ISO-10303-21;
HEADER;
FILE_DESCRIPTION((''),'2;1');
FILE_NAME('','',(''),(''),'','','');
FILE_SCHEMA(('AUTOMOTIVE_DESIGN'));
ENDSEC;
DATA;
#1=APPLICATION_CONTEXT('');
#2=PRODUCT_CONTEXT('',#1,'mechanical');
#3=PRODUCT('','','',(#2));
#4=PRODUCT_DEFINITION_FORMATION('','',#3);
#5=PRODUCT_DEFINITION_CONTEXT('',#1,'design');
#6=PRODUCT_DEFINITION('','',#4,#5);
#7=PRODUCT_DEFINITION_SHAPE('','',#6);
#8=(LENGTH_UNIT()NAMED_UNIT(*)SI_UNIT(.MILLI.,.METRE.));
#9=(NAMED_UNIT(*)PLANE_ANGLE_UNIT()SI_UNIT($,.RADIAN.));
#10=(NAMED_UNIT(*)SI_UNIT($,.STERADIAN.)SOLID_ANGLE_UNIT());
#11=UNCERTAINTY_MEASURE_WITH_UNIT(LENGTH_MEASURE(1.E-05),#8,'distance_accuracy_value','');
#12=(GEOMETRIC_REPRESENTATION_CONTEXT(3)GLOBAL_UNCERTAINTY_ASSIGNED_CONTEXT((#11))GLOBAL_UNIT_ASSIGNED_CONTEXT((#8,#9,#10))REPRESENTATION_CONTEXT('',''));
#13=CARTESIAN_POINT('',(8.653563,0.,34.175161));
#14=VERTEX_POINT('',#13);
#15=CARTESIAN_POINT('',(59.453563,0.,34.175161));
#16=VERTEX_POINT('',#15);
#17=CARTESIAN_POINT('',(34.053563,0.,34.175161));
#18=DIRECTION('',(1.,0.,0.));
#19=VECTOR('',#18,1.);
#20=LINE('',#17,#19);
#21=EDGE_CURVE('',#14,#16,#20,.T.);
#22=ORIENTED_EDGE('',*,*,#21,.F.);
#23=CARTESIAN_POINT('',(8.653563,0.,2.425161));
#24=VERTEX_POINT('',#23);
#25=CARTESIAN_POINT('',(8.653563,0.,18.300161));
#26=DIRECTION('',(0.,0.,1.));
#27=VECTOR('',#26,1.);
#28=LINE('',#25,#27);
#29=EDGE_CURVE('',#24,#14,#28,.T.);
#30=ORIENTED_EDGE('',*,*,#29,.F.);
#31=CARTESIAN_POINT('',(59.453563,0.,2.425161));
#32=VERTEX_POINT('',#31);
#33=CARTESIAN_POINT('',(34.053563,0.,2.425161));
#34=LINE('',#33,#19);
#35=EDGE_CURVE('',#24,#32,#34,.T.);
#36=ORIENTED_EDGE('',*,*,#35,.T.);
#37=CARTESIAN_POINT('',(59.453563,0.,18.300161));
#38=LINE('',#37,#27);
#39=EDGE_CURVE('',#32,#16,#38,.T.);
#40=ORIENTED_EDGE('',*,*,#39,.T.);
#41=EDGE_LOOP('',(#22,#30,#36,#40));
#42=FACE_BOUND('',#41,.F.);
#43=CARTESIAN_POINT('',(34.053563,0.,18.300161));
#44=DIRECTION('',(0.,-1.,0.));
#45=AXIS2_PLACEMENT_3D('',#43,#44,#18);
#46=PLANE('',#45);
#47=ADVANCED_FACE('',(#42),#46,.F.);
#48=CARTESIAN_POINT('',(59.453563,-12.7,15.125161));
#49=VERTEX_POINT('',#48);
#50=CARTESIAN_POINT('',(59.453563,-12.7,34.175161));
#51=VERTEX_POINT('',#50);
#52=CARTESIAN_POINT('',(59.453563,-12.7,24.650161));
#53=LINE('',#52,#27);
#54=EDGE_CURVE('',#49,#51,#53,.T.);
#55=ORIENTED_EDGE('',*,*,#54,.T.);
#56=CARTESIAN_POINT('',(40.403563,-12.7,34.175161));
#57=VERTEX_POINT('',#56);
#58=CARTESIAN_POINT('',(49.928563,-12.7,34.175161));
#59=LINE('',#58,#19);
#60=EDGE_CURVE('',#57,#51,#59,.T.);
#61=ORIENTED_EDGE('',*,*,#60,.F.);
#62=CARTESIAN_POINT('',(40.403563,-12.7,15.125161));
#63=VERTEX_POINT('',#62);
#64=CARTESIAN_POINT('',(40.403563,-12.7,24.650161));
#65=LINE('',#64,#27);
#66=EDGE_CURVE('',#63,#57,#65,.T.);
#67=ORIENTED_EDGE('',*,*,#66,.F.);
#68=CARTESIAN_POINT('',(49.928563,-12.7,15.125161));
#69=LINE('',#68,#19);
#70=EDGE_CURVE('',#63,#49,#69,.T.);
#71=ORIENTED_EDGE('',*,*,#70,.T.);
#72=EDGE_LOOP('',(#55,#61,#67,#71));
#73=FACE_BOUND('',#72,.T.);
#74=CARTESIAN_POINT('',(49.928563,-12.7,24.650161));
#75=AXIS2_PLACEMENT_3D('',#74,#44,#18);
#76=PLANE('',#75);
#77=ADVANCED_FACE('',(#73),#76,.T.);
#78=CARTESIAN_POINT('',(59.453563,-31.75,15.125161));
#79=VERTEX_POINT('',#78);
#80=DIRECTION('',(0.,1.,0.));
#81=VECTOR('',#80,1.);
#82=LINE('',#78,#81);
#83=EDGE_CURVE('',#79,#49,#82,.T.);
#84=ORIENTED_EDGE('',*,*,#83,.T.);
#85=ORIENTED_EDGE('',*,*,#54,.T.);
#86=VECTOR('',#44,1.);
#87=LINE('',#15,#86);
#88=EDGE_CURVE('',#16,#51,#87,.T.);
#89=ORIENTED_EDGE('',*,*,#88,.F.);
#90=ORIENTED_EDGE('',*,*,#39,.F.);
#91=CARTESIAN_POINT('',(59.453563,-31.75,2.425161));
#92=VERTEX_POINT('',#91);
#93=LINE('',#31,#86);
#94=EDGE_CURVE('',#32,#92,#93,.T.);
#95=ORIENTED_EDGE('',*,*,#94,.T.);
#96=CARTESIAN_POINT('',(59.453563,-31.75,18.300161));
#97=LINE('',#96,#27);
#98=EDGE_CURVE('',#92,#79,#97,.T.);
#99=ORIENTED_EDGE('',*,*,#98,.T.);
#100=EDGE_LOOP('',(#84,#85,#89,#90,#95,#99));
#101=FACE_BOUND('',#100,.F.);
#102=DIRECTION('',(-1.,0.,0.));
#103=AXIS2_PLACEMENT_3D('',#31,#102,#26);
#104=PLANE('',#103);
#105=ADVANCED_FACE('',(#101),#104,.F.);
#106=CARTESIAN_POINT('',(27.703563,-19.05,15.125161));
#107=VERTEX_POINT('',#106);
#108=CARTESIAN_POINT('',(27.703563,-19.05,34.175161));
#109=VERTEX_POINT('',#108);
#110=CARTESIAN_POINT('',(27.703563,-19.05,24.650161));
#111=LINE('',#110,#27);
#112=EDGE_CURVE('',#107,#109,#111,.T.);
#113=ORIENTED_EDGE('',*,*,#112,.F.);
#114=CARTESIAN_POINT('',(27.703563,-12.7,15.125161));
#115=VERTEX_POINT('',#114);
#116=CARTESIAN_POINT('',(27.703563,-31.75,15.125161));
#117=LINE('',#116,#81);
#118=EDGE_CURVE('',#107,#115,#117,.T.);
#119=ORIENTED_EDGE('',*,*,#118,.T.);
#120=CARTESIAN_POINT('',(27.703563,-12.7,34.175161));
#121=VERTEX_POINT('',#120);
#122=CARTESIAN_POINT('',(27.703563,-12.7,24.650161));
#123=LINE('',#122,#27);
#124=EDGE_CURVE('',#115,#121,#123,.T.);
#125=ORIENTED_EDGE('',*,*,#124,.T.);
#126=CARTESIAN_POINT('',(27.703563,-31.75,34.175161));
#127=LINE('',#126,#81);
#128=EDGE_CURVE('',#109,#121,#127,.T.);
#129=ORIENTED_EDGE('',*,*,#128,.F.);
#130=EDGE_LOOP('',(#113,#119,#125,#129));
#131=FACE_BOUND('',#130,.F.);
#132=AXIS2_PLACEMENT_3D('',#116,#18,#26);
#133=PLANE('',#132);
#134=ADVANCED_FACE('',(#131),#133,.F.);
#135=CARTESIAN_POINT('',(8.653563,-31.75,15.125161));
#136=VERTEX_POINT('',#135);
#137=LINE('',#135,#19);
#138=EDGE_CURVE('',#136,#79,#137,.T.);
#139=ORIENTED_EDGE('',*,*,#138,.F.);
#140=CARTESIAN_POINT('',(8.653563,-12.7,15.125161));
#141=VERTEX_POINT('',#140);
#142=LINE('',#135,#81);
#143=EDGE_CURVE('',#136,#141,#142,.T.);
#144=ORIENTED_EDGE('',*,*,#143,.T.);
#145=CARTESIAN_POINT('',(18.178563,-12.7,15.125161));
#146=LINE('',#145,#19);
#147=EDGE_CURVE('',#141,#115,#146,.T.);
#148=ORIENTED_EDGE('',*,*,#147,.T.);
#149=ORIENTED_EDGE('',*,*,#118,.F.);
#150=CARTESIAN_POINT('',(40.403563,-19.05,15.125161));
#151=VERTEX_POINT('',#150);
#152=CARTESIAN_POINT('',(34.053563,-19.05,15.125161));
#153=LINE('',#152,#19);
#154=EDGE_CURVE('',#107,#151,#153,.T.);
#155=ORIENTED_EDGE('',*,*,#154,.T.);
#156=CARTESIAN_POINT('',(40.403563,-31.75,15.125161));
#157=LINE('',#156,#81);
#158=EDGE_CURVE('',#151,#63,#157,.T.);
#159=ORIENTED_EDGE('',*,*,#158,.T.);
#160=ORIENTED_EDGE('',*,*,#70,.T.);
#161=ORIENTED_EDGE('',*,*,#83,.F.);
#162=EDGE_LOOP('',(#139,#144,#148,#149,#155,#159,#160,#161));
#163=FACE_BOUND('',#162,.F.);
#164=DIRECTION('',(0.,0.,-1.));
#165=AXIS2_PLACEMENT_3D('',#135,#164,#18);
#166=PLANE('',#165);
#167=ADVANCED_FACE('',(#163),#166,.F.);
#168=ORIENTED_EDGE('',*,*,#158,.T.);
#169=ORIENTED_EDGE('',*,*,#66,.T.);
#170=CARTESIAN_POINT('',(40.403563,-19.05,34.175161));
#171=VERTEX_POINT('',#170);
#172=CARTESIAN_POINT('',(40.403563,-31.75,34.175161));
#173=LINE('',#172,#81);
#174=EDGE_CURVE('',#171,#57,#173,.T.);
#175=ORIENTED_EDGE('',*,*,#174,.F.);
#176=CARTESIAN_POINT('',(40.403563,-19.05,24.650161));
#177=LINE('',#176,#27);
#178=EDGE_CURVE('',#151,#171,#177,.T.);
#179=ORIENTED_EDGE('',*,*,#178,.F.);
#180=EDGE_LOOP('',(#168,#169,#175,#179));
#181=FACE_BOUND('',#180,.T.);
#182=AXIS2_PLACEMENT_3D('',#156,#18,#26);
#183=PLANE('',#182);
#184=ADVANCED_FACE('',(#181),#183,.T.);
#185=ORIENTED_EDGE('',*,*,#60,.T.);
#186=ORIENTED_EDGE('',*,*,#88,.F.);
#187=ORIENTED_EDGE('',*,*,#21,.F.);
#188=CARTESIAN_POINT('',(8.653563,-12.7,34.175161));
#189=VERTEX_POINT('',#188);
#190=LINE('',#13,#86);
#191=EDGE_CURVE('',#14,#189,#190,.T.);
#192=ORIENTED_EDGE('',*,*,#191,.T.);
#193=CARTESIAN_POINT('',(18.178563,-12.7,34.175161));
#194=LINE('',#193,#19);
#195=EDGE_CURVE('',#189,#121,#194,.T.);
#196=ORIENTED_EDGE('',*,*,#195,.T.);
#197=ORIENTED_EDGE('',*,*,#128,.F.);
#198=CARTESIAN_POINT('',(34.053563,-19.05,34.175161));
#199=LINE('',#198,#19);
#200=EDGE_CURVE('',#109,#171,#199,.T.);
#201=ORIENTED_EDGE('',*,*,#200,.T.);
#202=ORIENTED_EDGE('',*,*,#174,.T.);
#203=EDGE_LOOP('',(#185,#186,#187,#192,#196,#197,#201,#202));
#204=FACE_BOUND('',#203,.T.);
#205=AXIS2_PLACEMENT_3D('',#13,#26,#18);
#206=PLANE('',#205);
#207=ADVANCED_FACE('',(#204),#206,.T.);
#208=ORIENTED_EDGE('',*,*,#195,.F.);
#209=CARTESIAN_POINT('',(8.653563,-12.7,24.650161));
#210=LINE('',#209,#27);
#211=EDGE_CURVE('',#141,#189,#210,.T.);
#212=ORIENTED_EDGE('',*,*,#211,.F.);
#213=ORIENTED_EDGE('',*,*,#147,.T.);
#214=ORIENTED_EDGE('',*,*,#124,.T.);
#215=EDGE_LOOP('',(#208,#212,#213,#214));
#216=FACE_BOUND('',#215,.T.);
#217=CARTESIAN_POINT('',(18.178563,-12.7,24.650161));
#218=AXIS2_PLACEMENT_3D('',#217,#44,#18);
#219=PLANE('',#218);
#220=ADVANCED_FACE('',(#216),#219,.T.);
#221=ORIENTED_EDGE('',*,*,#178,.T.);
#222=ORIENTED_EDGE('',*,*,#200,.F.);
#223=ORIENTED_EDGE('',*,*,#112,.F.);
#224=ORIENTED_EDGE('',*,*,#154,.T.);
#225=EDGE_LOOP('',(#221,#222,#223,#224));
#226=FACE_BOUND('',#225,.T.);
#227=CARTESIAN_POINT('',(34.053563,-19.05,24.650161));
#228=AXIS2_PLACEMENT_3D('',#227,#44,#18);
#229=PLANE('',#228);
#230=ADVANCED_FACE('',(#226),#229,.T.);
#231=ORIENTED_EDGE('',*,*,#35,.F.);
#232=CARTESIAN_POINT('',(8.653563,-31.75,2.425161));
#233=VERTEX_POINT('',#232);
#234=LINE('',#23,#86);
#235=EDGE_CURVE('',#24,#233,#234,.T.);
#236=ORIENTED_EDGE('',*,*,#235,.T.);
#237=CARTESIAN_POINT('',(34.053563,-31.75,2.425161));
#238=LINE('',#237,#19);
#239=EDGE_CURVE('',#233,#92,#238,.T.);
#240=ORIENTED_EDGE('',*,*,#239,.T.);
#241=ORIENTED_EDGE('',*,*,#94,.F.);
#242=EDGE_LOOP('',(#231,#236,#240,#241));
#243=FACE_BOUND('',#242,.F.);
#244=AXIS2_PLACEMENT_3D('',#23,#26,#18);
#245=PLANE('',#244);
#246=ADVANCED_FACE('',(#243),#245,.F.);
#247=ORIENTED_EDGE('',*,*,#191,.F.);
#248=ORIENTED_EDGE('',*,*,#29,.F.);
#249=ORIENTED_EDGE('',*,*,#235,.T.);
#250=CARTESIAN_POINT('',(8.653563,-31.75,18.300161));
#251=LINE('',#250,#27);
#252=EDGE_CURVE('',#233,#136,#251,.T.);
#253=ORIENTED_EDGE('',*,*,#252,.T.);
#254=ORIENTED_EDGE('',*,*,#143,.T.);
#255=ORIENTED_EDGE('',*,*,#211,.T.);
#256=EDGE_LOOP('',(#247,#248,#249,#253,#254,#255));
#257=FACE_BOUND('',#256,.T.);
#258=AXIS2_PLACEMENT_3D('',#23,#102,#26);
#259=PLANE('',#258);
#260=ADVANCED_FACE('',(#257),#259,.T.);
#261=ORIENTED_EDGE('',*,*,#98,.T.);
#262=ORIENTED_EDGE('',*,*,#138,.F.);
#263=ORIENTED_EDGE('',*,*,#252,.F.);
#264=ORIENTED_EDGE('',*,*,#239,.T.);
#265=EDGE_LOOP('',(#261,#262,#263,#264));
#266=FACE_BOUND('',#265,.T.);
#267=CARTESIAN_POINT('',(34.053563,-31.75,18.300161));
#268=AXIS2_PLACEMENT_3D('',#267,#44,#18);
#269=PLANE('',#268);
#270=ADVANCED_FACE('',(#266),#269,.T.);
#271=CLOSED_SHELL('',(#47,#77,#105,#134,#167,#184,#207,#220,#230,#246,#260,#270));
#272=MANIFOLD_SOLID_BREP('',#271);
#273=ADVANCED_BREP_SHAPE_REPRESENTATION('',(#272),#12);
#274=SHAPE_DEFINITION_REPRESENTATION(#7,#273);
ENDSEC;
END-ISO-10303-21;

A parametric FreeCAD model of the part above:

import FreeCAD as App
import Part
import Sketcher
Q = App.Units.Quantity


def add_polygon(sketch, points):
    """Adds a closed chain of lines whose ends are joined by coincident constraints."""
    first, n = sketch.GeometryCount, len(points)
    for a, b in zip(points, points[1:] + points[:1]):
        sketch.addGeometry(Part.LineSegment(App.Vector(*a, 0), App.Vector(*b, 0)), False)
    for i in range(n):
        sketch.addConstraint(Sketcher.Constraint("Coincident", first + i, 2, first + (i + 1) % n, 1))

doc = App.newDocument("Part")
body = doc.addObject("PartDesign::Body", "Body")

sketch1 = doc.addObject("Sketcher::SketchObject", "Sketch")
body.addObject(sketch1)
sketch1.AttachmentSupport = (doc.XZ_Plane, [""])
sketch1.MapMode = "FlatFace"
add_polygon(sketch1, [(9, 34), (9, 2), (59, 2), (59, 34)])
sketch1.addConstraint(Sketcher.Constraint("Vertical", 0))
sketch1.addConstraint(Sketcher.Constraint("Horizontal", 1))
sketch1.addConstraint(Sketcher.Constraint("Vertical", 2))
sketch1.addConstraint(Sketcher.Constraint("Horizontal", 3))
sketch1.addConstraint(Sketcher.Constraint("DistanceX", 1, 1, 1, 2, Q("2 in")))
sketch1.addConstraint(Sketcher.Constraint("DistanceY", 0, 2, 0, 1, Q("1.25 in")))
sketch1.addConstraint(Sketcher.Constraint("DistanceY", -1, 1, 0, 2, 2.425161))
sketch1.addConstraint(Sketcher.Constraint("DistanceX", -1, 1, 0, 2, 8.653563))
pad1 = doc.addObject("PartDesign::Pad", "Pad")
body.addObject(pad1)
pad1.Profile = sketch1
pad1.Length = Q("1.25 in")

sketch2 = doc.addObject("Sketcher::SketchObject", "Sketch001")
body.addObject(sketch2)
sketch2.AttachmentSupport = (doc.XZ_Plane, [""])
sketch2.MapMode = "FlatFace"
sketch2.AttachmentOffset = App.Placement(App.Vector(0, 0, 1.25 * 25.4), App.Rotation())
add_polygon(sketch2, [(9, 34), (9, 15), (28, 15), (28, 34)])
sketch2.addConstraint(Sketcher.Constraint("Vertical", 0))
sketch2.addConstraint(Sketcher.Constraint("Horizontal", 1))
sketch2.addConstraint(Sketcher.Constraint("Vertical", 2))
sketch2.addConstraint(Sketcher.Constraint("Horizontal", 3))
sketch2.addConstraint(Sketcher.Constraint("Equal", 3, 0))
sketch2.addConstraint(Sketcher.Constraint("DistanceX", 1, 1, 1, 2, Q("0.75 in")))
sketch2.addConstraint(Sketcher.Constraint("DistanceY", -1, 1, 0, 2, 15.125161))
sketch2.addConstraint(Sketcher.Constraint("DistanceX", -1, 1, 0, 2, 8.653563))
pocket1 = doc.addObject("PartDesign::Pocket", "Pocket")
body.addObject(pocket1)
pocket1.Profile = sketch2
pocket1.Length = Q("0.75 in")

sketch3 = doc.addObject("Sketcher::SketchObject", "Sketch002")
body.addObject(sketch3)
sketch3.AttachmentSupport = (doc.XZ_Plane, [""])
sketch3.MapMode = "FlatFace"
sketch3.AttachmentOffset = App.Placement(App.Vector(0, 0, 1.25 * 25.4), App.Rotation())
add_polygon(sketch3, [(40, 34), (40, 15), (59, 15), (59, 34)])
sketch3.addConstraint(Sketcher.Constraint("Vertical", 0))
sketch3.addConstraint(Sketcher.Constraint("Horizontal", 1))
sketch3.addConstraint(Sketcher.Constraint("Vertical", 2))
sketch3.addConstraint(Sketcher.Constraint("Horizontal", 3))
sketch3.addConstraint(Sketcher.Constraint("Equal", 3, 0))
sketch3.addConstraint(Sketcher.Constraint("DistanceX", 1, 1, 1, 2, Q("0.75 in")))
sketch3.addConstraint(Sketcher.Constraint("DistanceY", -1, 1, 0, 2, 15.125161))
sketch3.addConstraint(Sketcher.Constraint("DistanceX", -1, 1, 0, 2, 40.403563))
pocket2 = doc.addObject("PartDesign::Pocket", "Pocket001")
body.addObject(pocket2)
pocket2.Profile = sketch3
pocket2.Length = Q("0.75 in")

sketch4 = doc.addObject("Sketcher::SketchObject", "Sketch003")
body.addObject(sketch4)
sketch4.AttachmentSupport = (doc.XZ_Plane, [""])
sketch4.MapMode = "FlatFace"
sketch4.AttachmentOffset = App.Placement(App.Vector(0, 0, 1.25 * 25.4), App.Rotation())
add_polygon(sketch4, [(28, 34), (28, 15), (40, 15), (40, 34)])
sketch4.addConstraint(Sketcher.Constraint("Vertical", 0))
sketch4.addConstraint(Sketcher.Constraint("Horizontal", 1))
sketch4.addConstraint(Sketcher.Constraint("Vertical", 2))
sketch4.addConstraint(Sketcher.Constraint("Horizontal", 3))
sketch4.addConstraint(Sketcher.Constraint("DistanceX", 1, 1, 1, 2, Q("0.5 in")))
sketch4.addConstraint(Sketcher.Constraint("DistanceY", 0, 2, 0, 1, Q("0.75 in")))
sketch4.addConstraint(Sketcher.Constraint("DistanceY", -1, 1, 0, 2, 15.125161))
sketch4.addConstraint(Sketcher.Constraint("DistanceX", -1, 1, 0, 2, 27.703563))
pocket3 = doc.addObject("PartDesign::Pocket", "Pocket002")
body.addObject(pocket3)
pocket3.Profile = sketch4
pocket3.Length = Q("0.5 in")

doc.recompute()
